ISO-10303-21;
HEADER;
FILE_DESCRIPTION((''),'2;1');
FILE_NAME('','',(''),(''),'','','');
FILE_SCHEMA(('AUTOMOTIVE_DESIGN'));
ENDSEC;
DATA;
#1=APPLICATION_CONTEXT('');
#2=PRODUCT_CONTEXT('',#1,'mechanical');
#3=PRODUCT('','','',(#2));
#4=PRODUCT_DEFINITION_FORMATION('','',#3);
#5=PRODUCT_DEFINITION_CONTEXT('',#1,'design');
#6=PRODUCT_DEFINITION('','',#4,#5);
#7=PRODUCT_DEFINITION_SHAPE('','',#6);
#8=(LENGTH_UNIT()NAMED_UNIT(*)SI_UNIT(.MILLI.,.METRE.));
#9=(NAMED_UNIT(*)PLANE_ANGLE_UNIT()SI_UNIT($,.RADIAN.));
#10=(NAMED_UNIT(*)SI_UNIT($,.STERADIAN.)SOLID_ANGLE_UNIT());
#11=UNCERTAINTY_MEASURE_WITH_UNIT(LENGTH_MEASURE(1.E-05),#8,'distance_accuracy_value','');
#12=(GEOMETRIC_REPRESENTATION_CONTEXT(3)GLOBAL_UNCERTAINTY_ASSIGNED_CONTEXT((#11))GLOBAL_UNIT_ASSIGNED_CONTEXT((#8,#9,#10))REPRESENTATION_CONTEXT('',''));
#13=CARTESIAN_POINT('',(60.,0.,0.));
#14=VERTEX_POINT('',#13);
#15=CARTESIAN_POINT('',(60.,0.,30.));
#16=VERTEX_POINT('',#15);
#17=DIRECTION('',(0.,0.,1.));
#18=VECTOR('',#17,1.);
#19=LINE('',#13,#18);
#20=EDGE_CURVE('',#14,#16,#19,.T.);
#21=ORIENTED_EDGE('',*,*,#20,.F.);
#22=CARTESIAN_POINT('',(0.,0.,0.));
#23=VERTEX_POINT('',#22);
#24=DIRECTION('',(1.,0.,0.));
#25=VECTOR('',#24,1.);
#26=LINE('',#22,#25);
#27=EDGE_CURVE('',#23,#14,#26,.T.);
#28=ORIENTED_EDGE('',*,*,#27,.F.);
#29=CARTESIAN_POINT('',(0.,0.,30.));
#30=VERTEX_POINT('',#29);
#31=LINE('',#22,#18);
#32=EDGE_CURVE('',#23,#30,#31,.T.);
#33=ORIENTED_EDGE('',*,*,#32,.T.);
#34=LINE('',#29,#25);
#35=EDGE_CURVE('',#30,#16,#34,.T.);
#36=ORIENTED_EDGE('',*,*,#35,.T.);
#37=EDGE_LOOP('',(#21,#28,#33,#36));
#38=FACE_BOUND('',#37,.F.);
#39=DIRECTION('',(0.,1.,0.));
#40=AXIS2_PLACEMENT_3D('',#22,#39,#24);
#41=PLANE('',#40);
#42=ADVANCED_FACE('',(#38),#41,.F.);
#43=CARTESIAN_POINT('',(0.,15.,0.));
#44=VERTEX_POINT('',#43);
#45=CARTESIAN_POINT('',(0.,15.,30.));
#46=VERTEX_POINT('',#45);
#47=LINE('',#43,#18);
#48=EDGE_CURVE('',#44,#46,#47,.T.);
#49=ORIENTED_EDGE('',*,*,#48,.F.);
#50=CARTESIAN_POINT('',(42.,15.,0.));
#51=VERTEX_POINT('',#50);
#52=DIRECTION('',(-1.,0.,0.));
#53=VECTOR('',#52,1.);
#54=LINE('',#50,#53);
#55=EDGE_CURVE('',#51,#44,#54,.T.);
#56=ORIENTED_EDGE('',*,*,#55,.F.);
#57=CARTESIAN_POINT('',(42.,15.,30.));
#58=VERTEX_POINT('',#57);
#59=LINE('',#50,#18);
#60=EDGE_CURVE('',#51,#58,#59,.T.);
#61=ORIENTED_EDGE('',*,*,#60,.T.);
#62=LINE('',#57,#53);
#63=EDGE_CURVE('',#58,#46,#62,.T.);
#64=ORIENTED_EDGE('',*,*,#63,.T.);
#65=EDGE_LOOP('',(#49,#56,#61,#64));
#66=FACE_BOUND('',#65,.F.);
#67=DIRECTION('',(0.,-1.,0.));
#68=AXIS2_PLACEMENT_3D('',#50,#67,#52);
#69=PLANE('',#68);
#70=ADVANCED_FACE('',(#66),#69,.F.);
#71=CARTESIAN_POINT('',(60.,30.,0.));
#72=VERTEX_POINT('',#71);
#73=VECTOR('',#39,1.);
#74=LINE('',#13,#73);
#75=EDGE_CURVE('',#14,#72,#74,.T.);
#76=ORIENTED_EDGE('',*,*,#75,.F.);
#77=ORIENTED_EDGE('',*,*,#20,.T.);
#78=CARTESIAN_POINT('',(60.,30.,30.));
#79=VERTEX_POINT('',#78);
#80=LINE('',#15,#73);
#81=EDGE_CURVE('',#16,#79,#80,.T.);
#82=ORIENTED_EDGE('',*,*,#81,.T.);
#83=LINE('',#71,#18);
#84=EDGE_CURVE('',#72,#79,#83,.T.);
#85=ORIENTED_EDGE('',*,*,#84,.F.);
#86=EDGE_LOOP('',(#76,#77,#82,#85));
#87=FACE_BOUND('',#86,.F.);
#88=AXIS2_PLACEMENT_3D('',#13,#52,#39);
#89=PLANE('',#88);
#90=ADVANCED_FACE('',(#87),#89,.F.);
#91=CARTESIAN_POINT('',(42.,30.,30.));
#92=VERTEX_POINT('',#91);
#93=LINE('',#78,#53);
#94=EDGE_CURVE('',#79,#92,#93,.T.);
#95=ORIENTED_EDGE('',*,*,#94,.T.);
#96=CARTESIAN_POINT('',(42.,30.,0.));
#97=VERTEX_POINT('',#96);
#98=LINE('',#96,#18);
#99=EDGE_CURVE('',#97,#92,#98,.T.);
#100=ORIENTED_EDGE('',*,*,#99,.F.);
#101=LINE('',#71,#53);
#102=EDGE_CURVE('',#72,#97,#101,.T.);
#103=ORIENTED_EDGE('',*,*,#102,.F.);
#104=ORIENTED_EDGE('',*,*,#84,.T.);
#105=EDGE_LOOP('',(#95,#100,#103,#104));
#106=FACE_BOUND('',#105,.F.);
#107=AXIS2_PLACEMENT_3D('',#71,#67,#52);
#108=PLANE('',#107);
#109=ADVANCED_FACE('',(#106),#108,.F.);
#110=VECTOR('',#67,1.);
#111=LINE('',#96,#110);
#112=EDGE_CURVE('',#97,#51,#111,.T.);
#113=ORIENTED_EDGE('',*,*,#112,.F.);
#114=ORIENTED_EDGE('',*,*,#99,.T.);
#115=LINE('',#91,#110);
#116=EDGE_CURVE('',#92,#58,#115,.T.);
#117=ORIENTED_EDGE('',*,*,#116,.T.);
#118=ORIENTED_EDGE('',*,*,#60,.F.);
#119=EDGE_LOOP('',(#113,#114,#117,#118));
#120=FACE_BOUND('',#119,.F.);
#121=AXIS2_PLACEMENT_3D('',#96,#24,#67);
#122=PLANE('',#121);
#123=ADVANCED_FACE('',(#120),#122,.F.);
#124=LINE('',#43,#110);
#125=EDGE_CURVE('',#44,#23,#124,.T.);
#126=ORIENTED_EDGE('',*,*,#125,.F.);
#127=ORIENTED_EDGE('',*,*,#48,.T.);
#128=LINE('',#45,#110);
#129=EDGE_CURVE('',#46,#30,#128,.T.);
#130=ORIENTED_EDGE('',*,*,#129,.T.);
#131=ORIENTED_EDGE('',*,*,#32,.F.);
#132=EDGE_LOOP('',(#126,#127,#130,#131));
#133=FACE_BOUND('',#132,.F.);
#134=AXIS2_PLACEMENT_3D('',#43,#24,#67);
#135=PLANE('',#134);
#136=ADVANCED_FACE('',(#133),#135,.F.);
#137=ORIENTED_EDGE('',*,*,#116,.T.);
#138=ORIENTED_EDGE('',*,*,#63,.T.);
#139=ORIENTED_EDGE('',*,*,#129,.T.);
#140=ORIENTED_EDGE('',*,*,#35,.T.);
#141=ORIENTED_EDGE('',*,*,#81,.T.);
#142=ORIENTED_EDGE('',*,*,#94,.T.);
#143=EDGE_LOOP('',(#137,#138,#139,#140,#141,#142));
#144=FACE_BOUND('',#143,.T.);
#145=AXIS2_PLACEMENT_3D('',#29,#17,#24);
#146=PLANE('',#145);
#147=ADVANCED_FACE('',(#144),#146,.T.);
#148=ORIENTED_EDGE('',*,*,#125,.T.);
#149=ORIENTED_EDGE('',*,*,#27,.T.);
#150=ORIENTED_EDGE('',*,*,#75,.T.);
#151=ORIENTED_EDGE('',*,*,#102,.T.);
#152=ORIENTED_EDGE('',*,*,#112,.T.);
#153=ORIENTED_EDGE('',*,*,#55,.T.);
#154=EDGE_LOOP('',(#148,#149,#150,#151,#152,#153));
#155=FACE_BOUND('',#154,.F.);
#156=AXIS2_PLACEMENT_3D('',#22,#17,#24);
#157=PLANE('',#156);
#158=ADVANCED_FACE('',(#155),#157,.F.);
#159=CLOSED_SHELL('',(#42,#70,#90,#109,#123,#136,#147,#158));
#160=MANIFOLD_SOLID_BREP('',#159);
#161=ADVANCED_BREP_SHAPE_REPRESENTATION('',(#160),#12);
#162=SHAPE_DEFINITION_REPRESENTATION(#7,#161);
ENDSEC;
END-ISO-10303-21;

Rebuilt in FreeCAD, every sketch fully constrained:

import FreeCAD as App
import Part
import Sketcher
Q = App.Units.Quantity


def add_polygon(sketch, points):
    """Adds a closed chain of lines whose ends are joined by coincident constraints."""
    first, n = sketch.GeometryCount, len(points)
    for a, b in zip(points, points[1:] + points[:1]):
        sketch.addGeometry(Part.LineSegment(App.Vector(*a, 0), App.Vector(*b, 0)), False)
    for i in range(n):
        sketch.addConstraint(Sketcher.Constraint("Coincident", first + i, 2, first + (i + 1) % n, 1))

doc = App.newDocument("Part")
body = doc.addObject("PartDesign::Body", "Body")

# Sketch on XY plane
sketch1 = body.newObject("Sketcher::SketchObject", "Sketch")
sketch1.AttachmentSupport = (doc.getObject("XY_Plane"), [""])
sketch1.MapMode = "FlatFace"
add_polygon(sketch1, [(0, 15), (0, 0), (60, 0), (60, 30), (42, 30), (42, 15)])  # lines 0-5
sketch1.addConstraint(Sketcher.Constraint("Vertical", 0))
sketch1.addConstraint(Sketcher.Constraint("Horizontal", 1))
sketch1.addConstraint(Sketcher.Constraint("Vertical", 2))
sketch1.addConstraint(Sketcher.Constraint("Horizontal", 3))
sketch1.addConstraint(Sketcher.Constraint("Vertical", 4))
sketch1.addConstraint(Sketcher.Constraint("Horizontal", 5))
sketch1.addConstraint(Sketcher.Constraint("Coincident", 0, 2, -1, 1))
sketch1.addConstraint(Sketcher.Constraint("Equal", 0, 4))
sketch1.addConstraint(Sketcher.Constraint("DistanceX", 1, 1, 1, 2, Q("60 mm")))
sketch1.addConstraint(Sketcher.Constraint("DistanceX", 3, 2, 3, 1, Q("18 mm")))
sketch1.addConstraint(Sketcher.Constraint("DistanceY", 0, 2, 0, 1, Q("15 mm")))
pad1 = body.newObject("PartDesign::Pad", "Pad")
pad1.Profile = sketch1
pad1.Length = 30

doc.recompute()
